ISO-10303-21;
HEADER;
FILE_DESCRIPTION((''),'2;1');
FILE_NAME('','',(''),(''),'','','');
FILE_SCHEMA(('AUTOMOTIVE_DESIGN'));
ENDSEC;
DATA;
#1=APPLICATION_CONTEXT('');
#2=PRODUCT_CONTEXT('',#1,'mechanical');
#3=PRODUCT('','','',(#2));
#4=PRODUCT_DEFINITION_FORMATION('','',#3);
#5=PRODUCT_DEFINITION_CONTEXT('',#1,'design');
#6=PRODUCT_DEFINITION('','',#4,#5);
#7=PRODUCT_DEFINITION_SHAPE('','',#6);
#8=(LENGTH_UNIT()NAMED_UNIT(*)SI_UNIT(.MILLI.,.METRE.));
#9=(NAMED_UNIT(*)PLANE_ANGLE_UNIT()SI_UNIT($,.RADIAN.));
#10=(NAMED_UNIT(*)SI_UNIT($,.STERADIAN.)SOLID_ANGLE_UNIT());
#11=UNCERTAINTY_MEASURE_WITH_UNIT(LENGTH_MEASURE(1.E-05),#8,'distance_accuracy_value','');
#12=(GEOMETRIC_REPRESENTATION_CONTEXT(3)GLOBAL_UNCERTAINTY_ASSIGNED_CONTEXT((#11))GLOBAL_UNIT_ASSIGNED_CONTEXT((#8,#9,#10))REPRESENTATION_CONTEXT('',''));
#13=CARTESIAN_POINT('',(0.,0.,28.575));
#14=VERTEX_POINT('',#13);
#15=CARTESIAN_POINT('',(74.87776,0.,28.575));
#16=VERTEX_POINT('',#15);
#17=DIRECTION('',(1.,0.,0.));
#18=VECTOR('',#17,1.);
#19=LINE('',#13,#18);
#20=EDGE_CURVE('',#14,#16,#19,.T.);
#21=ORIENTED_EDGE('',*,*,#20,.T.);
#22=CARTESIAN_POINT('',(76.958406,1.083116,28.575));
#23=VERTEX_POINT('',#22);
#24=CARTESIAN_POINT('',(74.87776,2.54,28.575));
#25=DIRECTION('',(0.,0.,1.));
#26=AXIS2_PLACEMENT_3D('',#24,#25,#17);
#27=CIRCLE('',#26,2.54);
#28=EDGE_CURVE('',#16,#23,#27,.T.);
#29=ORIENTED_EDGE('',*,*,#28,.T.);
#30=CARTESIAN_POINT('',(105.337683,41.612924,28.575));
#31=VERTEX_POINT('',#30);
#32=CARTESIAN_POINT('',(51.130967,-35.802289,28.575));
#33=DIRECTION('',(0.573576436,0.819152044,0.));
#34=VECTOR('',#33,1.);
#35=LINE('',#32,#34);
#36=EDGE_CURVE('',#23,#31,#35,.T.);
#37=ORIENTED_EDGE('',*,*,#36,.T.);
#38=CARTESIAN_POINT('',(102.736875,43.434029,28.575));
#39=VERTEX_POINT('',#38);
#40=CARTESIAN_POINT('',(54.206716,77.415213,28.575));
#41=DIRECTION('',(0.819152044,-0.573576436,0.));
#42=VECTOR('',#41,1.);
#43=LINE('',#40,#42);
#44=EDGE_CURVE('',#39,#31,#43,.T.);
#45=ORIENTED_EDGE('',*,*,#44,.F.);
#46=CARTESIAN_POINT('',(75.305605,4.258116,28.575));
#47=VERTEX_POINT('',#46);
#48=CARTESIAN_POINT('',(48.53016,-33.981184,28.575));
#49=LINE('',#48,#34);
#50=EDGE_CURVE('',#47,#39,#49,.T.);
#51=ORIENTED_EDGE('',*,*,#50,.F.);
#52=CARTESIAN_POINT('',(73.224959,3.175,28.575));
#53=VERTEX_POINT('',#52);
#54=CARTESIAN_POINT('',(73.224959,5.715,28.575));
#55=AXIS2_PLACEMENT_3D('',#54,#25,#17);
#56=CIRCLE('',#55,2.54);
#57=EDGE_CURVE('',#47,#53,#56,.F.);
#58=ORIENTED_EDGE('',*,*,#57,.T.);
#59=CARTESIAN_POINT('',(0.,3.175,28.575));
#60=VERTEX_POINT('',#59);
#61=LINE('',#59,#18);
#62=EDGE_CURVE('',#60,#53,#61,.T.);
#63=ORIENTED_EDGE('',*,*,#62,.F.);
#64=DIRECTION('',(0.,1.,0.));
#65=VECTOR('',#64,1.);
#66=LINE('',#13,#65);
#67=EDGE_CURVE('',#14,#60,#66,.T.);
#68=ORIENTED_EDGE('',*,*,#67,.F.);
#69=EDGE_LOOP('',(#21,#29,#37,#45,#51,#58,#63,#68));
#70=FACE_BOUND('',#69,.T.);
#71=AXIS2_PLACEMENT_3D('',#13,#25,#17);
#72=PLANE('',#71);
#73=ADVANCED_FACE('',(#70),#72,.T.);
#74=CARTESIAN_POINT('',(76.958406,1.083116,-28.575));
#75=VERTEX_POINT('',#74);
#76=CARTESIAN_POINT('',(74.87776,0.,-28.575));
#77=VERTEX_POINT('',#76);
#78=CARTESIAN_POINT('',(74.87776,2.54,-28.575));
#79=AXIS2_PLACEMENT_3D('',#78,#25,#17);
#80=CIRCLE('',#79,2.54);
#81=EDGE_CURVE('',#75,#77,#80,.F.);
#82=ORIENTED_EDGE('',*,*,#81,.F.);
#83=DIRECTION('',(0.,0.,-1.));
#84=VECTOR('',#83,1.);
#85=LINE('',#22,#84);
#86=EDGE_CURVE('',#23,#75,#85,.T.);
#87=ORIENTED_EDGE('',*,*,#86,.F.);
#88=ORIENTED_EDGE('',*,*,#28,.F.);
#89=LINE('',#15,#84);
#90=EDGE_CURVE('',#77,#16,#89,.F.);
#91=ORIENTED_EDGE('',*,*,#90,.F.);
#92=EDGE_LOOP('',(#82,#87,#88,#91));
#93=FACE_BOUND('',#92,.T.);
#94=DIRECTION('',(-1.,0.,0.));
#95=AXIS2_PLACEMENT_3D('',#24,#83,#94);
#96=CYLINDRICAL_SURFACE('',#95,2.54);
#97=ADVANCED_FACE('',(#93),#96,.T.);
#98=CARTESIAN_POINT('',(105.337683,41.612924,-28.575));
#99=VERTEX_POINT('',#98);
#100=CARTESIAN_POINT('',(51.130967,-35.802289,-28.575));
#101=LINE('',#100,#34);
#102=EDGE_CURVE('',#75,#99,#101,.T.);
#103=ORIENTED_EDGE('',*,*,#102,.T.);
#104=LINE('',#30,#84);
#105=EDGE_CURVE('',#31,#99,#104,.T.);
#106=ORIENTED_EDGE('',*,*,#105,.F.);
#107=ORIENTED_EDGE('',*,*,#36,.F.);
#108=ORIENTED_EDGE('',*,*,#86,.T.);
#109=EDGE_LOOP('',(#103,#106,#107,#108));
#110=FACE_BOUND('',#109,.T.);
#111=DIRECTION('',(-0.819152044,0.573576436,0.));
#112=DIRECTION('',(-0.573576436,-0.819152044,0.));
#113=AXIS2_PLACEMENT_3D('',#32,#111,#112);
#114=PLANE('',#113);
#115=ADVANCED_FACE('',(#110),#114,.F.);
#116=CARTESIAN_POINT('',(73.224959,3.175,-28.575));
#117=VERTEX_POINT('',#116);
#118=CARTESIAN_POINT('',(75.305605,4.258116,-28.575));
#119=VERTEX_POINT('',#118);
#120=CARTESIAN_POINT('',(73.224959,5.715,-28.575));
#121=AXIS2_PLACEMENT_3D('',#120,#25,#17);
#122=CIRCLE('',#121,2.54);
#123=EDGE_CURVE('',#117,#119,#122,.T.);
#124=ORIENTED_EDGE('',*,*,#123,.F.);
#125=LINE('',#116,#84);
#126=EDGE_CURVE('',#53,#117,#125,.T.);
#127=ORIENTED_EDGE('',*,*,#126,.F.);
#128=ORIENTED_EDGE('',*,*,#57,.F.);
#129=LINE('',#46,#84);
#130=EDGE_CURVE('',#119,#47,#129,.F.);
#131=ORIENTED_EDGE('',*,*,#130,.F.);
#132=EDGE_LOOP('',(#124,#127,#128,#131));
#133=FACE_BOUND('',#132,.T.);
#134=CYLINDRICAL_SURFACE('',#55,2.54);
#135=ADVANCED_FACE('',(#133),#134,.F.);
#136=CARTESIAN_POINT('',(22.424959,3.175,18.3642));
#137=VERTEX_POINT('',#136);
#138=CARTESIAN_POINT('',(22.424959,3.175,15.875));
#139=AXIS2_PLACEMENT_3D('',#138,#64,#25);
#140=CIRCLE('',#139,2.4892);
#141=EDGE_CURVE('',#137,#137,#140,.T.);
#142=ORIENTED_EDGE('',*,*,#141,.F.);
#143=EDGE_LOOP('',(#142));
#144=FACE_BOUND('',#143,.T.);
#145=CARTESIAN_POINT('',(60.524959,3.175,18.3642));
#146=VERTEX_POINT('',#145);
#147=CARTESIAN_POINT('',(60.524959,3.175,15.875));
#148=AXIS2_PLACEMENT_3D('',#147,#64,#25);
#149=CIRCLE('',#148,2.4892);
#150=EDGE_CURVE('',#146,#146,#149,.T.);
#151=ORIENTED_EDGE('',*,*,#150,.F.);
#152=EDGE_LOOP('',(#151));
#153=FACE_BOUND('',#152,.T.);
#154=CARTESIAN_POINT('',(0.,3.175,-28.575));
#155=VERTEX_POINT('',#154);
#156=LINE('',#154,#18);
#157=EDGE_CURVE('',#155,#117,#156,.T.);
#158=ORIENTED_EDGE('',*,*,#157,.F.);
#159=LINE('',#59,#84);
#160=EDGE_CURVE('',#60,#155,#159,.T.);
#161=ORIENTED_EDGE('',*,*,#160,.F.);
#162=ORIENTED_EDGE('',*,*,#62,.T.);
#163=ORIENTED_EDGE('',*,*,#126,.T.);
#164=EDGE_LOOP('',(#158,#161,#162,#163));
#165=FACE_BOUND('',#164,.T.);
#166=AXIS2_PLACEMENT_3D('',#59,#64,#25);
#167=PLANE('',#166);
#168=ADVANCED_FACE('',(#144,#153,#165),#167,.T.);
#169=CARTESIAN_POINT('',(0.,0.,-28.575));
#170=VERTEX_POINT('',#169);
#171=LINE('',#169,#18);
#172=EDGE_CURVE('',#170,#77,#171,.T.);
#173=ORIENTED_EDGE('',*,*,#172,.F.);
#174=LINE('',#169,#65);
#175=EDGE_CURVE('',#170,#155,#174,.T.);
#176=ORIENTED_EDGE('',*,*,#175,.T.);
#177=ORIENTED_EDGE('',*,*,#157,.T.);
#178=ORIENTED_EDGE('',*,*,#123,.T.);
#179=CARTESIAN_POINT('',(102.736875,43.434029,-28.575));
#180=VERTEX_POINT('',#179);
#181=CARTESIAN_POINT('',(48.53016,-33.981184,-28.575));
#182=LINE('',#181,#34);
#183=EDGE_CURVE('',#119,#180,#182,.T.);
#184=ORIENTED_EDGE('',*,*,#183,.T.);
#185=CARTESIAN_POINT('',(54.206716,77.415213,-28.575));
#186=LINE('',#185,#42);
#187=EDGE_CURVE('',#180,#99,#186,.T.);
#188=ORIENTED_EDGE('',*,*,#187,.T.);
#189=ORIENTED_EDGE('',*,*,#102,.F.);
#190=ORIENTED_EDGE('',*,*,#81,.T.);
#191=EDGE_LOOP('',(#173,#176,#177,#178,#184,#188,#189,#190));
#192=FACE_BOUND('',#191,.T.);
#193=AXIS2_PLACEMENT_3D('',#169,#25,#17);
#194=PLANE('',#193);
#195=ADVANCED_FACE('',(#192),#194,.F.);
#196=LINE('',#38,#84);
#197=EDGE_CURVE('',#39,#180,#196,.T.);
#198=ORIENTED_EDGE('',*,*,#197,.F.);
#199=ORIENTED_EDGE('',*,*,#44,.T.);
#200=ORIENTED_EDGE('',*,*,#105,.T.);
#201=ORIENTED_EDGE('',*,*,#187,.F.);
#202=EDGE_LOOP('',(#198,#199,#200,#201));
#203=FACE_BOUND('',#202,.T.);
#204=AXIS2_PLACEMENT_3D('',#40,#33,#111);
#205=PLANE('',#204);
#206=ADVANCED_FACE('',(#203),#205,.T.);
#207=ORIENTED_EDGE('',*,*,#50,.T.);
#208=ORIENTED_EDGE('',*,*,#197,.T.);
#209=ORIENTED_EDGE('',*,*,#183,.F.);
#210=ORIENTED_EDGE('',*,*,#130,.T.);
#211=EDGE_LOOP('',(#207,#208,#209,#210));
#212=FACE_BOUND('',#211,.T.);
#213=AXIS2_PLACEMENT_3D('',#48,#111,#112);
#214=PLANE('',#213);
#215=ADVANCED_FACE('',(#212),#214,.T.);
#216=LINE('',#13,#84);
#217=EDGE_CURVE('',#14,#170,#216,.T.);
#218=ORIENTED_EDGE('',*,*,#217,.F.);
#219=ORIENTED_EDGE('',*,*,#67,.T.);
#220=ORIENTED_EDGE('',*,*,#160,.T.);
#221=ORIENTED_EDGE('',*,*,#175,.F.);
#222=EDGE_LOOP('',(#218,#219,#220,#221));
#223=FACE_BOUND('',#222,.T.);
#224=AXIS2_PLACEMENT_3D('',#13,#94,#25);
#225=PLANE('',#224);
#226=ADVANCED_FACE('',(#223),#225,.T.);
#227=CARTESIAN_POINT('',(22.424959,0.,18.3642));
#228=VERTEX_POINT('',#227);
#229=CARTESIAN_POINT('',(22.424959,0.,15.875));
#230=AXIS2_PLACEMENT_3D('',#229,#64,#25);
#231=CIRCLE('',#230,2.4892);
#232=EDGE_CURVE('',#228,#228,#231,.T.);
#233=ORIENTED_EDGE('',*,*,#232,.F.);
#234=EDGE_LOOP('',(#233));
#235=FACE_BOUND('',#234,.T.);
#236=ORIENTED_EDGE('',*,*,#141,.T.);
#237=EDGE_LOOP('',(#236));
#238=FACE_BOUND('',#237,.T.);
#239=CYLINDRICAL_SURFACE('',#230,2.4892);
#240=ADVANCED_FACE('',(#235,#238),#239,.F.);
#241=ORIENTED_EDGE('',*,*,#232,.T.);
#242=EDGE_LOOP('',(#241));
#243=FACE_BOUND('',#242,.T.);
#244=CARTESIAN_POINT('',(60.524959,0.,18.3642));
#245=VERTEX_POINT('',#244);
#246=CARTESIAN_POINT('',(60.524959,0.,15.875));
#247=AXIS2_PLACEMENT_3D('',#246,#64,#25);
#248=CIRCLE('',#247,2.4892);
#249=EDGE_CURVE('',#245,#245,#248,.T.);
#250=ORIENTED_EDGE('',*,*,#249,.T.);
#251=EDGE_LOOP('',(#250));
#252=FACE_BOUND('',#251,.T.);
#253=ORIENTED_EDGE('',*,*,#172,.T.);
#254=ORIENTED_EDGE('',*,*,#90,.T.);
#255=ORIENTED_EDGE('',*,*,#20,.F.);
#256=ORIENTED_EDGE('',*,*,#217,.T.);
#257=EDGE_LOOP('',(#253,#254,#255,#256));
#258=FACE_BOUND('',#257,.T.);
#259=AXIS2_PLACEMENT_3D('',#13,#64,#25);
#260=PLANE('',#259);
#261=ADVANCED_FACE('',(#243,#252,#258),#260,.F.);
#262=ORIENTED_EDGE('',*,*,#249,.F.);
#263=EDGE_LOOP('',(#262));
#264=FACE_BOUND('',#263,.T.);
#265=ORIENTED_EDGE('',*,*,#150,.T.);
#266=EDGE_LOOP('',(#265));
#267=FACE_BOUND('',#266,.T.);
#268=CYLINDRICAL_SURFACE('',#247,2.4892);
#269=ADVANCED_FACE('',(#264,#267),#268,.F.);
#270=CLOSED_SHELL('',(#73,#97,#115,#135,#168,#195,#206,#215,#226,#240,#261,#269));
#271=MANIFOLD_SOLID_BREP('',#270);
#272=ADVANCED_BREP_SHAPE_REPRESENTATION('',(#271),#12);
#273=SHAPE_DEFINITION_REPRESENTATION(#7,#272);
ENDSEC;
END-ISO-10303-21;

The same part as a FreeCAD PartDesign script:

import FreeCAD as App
import Part
import Sketcher
Q = App.Units.Quantity


def edges_at(feature, points):
    """Names of the edges that pass closest to the given points."""
    edges = feature.Shape.Edges
    near = lambda p: min(range(len(edges)), key=lambda i: edges[i].distToShape(Part.Vertex(*p))[0])
    return sorted({f"Edge{near(p) + 1}" for p in points})


def add_polygon(sketch, points):
    """Adds a closed chain of lines whose ends are joined by coincident constraints."""
    first, n = sketch.GeometryCount, len(points)
    for a, b in zip(points, points[1:] + points[:1]):
        sketch.addGeometry(Part.LineSegment(App.Vector(*a, 0), App.Vector(*b, 0)), False)
    for i in range(n):
        sketch.addConstraint(Sketcher.Constraint("Coincident", first + i, 2, first + (i + 1) % n, 1))

doc = App.newDocument("Part")
body = doc.addObject("PartDesign::Body", "Body")

sketch1 = doc.addObject("Sketcher::SketchObject", "Sketch")
body.addObject(sketch1)
sketch1.AttachmentSupport = (doc.XY_Plane, [""])
sketch1.MapMode = "FlatFace"
add_polygon(sketch1, [(74.5, 3.2), (0, 3.2), (0, 0), (76.2, 0), (105.3, 41.6), (102.7, 43.4)])
sketch1.addConstraint([
    Sketcher.Constraint("Horizontal", 0),
    Sketcher.Constraint("Vertical", 1),
    Sketcher.Constraint("Horizontal", 2),
    Sketcher.Constraint("Coincident", 1, 2, -1, 1),
    Sketcher.Constraint("Perpendicular", 3, 4),
    Sketcher.Constraint("Perpendicular", 4, 5),
    Sketcher.Constraint("DistanceX", 2, 1, 2, 2, Q("3 in")),
    Sketcher.Constraint("Distance", 3, Q("2 in")),
    Sketcher.Constraint("Angle", 3, Q("55 deg")),
    Sketcher.Constraint("DistanceY", 1, 2, 1, 1, Q("0.125 in")),
    Sketcher.Constraint("Distance", 4, Q("0.125 in")),
])
pad1 = doc.addObject("PartDesign::Pad", "Pad")
body.addObject(pad1)
pad1.Profile = sketch1
pad1.Length = Q("2.25 in")
pad1.Midplane = True
doc.recompute()

fillet = doc.addObject("PartDesign::Fillet", "Fillet")
body.addObject(fillet)
fillet.Base = (pad1, edges_at(pad1, [(74.547, 3.175, 0)]))
fillet.Radius = Q("0.1 in")
doc.recompute()

fillet2 = doc.addObject("PartDesign::Fillet", "Fillet001")
body.addObject(fillet2)
fillet2.Base = (fillet, edges_at(fillet, [(76.2, 0, 0)]))
fillet2.Radius = Q("0.1 in")

sketch2 = doc.addObject("Sketcher::SketchObject", "Sketch001")
body.addObject(sketch2)
sketch2.AttachmentSupport = (doc.XZ_Plane, [""])
sketch2.MapMode = "FlatFace"
sketch2.AttachmentOffset = App.Placement(App.Vector(0, 0, -0.125 * 25.4), App.Rotation())
sketch2.addGeometry([
    Part.Circle(App.Vector(60.5, 15.9, 0), App.Vector(0, 0, 1), 2.5),
    Part.Circle(App.Vector(22.4, 15.9, 0), App.Vector(0, 0, 1), 2.5),
], False)
sketch2.addConstraint([
    Sketcher.Constraint("Equal", 0, 1),
    Sketcher.Constraint("Horizontal", 0, 3, 1, 3),
    Sketcher.Constraint("Diameter", 0, Q("0.196 in")),
    Sketcher.Constraint("DistanceX", 1, 3, 0, 3, Q("1.5 in")),
    Sketcher.Constraint("DistanceY", -1, 1, 0, 3, Q("0.625 in")),
    Sketcher.Constraint("DistanceX", -1, 1, 0, 3, Q("60.524959 mm")),
])
pocket1 = doc.addObject("PartDesign::Pocket", "Pocket")
body.addObject(pocket1)
pocket1.Profile = sketch2
pocket1.Type = "ThroughAll"
pocket1.Reversed = True

doc.recompute()
